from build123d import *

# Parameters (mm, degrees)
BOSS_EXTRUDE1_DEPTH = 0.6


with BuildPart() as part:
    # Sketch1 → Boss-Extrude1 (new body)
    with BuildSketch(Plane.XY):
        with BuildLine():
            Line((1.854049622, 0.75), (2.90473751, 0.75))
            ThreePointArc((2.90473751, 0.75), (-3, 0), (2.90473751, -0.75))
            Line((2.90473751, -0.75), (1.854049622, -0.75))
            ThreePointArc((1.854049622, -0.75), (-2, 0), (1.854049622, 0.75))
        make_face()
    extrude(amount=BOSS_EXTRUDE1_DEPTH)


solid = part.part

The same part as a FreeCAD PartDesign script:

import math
import FreeCAD as App
import Part
import Sketcher
from FreeCAD import Vector
Q = App.Units.Quantity

doc = App.newDocument("Part")
body = doc.addObject("PartDesign::Body", "Body")

# Sketch on XY plane
sketch1 = body.newObject("Sketcher::SketchObject", "Sketch")
sketch1.AttachmentSupport = (doc.getObject("XY_Plane"), [""])
sketch1.MapMode = "FlatFace"
sketch1.addGeometry([
    Part.LineSegment(Vector(1.9, 0.8, 0), Vector(2.9, 0.8, 0)),
    Part.ArcOfCircle(Part.Circle(Vector(0, 0, 0), Vector(0, 0, 1), 3), math.radians(14), math.radians(346)),
    Part.LineSegment(Vector(2.9, -0.8, 0), Vector(1.9, -0.8, 0)),
    Part.ArcOfCircle(Part.Circle(Vector(0, 0, 0), Vector(0, 0, 1), 2), math.radians(22), math.radians(338)),
], False)
sketch1.addConstraint([
    Sketcher.Constraint("Coincident", 0, 2, 1, 1),
    Sketcher.Constraint("Coincident", 1, 2, 2, 1),
    Sketcher.Constraint("Coincident", 2, 2, 3, 2),
    Sketcher.Constraint("Coincident", 3, 1, 0, 1),
    Sketcher.Constraint("Horizontal", 0),
    Sketcher.Constraint("Horizontal", 2),
    Sketcher.Constraint("Coincident", 1, 3, -1, 1),
    Sketcher.Constraint("Coincident", 3, 3, -1, 1),
    Sketcher.Constraint("Vertical", 0, 2, 1, 2),
    Sketcher.Constraint("Radius", 1, Q("3 mm")),
    Sketcher.Constraint("Radius", 3, Q("2 mm")),
    Sketcher.Constraint("DistanceY", 1, 2, 0, 2, Q("1.5 mm")),
])
pad1 = body.newObject("PartDesign::Pad", "Pad")
pad1.Profile = sketch1
pad1.Length = 0.6

doc.recompute()
